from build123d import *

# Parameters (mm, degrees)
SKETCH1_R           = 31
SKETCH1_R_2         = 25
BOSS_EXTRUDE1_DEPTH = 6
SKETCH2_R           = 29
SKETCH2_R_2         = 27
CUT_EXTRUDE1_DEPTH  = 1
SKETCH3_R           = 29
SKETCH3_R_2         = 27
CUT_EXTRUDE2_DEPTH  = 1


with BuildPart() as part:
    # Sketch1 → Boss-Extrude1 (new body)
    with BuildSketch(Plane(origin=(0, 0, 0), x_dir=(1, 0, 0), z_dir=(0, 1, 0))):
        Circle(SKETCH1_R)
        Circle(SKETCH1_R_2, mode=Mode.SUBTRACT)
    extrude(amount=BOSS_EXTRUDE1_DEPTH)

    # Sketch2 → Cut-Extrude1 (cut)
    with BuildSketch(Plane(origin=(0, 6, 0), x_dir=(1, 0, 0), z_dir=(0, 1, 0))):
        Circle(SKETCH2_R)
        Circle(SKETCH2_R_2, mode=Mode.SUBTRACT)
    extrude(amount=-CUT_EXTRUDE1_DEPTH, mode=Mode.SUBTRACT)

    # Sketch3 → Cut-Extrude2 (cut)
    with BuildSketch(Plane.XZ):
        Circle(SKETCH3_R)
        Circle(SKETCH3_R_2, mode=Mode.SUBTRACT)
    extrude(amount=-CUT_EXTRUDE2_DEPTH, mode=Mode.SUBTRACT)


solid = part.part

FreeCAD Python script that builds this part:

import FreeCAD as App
import Part
import Sketcher
Q = App.Units.Quantity

doc = App.newDocument("Part")
body = doc.addObject("PartDesign::Body", "Body")

# Sketch on XZ plane
sketch1 = body.newObject("Sketcher::SketchObject", "Sketch")
sketch1.AttachmentSupport = (doc.getObject("XZ_Plane"), [""])
sketch1.MapMode = "FlatFace"
sketch1.addGeometry(Part.Circle(App.Vector(0, 0, 0), App.Vector(0, 0, 1), 31), False)
sketch1.addGeometry(Part.Circle(App.Vector(0, 0, 0), App.Vector(0, 0, 1), 25), False)
sketch1.addConstraint(Sketcher.Constraint("Coincident", 0, 3, -1, 1))
sketch1.addConstraint(Sketcher.Constraint("Coincident", 1, 3, -1, 1))
sketch1.addConstraint(Sketcher.Constraint("Diameter", 0, Q("62 mm")))
sketch1.addConstraint(Sketcher.Constraint("Diameter", 1, Q("50 mm")))
pad1 = body.newObject("PartDesign::Pad", "Pad")
pad1.Profile = sketch1
pad1.Length = 6
pad1.Reversed = True

# Sketch on XZ plane
sketch2 = body.newObject("Sketcher::SketchObject", "Sketch001")
sketch2.AttachmentSupport = (doc.getObject("XZ_Plane"), [""])
sketch2.MapMode = "FlatFace"
sketch2.AttachmentOffset = App.Placement(App.Vector(0, 0, -6), App.Rotation())
sketch2.addGeometry(Part.Circle(App.Vector(0, 0, 0), App.Vector(0, 0, 1), 29), False)
sketch2.addGeometry(Part.Circle(App.Vector(0, 0, 0), App.Vector(0, 0, 1), 27), False)
sketch2.addConstraint(Sketcher.Constraint("Coincident", 0, 3, -1, 1))
sketch2.addConstraint(Sketcher.Constraint("Coincident", 1, 3, -1, 1))
sketch2.addConstraint(Sketcher.Constraint("Diameter", 0, Q("58 mm")))
sketch2.addConstraint(Sketcher.Constraint("Diameter", 1, Q("54 mm")))
pocket1 = body.newObject("PartDesign::Pocket", "Pocket")
pocket1.Profile = sketch2
pocket1.Length = 1
pocket1.Reversed = True

# Sketch on XZ plane
sketch3 = body.newObject("Sketcher::SketchObject", "Sketch002")
sketch3.AttachmentSupport = (doc.getObject("XZ_Plane"), [""])
sketch3.MapMode = "FlatFace"
sketch3.addGeometry(Part.Circle(App.Vector(0, 0, 0), App.Vector(0, 0, 1), 29), False)
sketch3.addGeometry(Part.Circle(App.Vector(0, 0, 0), App.Vector(0, 0, 1), 27), False)
sketch3.addConstraint(Sketcher.Constraint("Coincident", 0, 3, -1, 1))
sketch3.addConstraint(Sketcher.Constraint("Coincident", 1, 3, -1, 1))
sketch3.addConstraint(Sketcher.Constraint("Diameter", 0, Q("58 mm")))
sketch3.addConstraint(Sketcher.Constraint("Diameter", 1, Q("54 mm")))
pocket2 = body.newObject("PartDesign::Pocket", "Pocket001")
pocket2.Profile = sketch3
pocket2.Length = 1

doc.recompute()
